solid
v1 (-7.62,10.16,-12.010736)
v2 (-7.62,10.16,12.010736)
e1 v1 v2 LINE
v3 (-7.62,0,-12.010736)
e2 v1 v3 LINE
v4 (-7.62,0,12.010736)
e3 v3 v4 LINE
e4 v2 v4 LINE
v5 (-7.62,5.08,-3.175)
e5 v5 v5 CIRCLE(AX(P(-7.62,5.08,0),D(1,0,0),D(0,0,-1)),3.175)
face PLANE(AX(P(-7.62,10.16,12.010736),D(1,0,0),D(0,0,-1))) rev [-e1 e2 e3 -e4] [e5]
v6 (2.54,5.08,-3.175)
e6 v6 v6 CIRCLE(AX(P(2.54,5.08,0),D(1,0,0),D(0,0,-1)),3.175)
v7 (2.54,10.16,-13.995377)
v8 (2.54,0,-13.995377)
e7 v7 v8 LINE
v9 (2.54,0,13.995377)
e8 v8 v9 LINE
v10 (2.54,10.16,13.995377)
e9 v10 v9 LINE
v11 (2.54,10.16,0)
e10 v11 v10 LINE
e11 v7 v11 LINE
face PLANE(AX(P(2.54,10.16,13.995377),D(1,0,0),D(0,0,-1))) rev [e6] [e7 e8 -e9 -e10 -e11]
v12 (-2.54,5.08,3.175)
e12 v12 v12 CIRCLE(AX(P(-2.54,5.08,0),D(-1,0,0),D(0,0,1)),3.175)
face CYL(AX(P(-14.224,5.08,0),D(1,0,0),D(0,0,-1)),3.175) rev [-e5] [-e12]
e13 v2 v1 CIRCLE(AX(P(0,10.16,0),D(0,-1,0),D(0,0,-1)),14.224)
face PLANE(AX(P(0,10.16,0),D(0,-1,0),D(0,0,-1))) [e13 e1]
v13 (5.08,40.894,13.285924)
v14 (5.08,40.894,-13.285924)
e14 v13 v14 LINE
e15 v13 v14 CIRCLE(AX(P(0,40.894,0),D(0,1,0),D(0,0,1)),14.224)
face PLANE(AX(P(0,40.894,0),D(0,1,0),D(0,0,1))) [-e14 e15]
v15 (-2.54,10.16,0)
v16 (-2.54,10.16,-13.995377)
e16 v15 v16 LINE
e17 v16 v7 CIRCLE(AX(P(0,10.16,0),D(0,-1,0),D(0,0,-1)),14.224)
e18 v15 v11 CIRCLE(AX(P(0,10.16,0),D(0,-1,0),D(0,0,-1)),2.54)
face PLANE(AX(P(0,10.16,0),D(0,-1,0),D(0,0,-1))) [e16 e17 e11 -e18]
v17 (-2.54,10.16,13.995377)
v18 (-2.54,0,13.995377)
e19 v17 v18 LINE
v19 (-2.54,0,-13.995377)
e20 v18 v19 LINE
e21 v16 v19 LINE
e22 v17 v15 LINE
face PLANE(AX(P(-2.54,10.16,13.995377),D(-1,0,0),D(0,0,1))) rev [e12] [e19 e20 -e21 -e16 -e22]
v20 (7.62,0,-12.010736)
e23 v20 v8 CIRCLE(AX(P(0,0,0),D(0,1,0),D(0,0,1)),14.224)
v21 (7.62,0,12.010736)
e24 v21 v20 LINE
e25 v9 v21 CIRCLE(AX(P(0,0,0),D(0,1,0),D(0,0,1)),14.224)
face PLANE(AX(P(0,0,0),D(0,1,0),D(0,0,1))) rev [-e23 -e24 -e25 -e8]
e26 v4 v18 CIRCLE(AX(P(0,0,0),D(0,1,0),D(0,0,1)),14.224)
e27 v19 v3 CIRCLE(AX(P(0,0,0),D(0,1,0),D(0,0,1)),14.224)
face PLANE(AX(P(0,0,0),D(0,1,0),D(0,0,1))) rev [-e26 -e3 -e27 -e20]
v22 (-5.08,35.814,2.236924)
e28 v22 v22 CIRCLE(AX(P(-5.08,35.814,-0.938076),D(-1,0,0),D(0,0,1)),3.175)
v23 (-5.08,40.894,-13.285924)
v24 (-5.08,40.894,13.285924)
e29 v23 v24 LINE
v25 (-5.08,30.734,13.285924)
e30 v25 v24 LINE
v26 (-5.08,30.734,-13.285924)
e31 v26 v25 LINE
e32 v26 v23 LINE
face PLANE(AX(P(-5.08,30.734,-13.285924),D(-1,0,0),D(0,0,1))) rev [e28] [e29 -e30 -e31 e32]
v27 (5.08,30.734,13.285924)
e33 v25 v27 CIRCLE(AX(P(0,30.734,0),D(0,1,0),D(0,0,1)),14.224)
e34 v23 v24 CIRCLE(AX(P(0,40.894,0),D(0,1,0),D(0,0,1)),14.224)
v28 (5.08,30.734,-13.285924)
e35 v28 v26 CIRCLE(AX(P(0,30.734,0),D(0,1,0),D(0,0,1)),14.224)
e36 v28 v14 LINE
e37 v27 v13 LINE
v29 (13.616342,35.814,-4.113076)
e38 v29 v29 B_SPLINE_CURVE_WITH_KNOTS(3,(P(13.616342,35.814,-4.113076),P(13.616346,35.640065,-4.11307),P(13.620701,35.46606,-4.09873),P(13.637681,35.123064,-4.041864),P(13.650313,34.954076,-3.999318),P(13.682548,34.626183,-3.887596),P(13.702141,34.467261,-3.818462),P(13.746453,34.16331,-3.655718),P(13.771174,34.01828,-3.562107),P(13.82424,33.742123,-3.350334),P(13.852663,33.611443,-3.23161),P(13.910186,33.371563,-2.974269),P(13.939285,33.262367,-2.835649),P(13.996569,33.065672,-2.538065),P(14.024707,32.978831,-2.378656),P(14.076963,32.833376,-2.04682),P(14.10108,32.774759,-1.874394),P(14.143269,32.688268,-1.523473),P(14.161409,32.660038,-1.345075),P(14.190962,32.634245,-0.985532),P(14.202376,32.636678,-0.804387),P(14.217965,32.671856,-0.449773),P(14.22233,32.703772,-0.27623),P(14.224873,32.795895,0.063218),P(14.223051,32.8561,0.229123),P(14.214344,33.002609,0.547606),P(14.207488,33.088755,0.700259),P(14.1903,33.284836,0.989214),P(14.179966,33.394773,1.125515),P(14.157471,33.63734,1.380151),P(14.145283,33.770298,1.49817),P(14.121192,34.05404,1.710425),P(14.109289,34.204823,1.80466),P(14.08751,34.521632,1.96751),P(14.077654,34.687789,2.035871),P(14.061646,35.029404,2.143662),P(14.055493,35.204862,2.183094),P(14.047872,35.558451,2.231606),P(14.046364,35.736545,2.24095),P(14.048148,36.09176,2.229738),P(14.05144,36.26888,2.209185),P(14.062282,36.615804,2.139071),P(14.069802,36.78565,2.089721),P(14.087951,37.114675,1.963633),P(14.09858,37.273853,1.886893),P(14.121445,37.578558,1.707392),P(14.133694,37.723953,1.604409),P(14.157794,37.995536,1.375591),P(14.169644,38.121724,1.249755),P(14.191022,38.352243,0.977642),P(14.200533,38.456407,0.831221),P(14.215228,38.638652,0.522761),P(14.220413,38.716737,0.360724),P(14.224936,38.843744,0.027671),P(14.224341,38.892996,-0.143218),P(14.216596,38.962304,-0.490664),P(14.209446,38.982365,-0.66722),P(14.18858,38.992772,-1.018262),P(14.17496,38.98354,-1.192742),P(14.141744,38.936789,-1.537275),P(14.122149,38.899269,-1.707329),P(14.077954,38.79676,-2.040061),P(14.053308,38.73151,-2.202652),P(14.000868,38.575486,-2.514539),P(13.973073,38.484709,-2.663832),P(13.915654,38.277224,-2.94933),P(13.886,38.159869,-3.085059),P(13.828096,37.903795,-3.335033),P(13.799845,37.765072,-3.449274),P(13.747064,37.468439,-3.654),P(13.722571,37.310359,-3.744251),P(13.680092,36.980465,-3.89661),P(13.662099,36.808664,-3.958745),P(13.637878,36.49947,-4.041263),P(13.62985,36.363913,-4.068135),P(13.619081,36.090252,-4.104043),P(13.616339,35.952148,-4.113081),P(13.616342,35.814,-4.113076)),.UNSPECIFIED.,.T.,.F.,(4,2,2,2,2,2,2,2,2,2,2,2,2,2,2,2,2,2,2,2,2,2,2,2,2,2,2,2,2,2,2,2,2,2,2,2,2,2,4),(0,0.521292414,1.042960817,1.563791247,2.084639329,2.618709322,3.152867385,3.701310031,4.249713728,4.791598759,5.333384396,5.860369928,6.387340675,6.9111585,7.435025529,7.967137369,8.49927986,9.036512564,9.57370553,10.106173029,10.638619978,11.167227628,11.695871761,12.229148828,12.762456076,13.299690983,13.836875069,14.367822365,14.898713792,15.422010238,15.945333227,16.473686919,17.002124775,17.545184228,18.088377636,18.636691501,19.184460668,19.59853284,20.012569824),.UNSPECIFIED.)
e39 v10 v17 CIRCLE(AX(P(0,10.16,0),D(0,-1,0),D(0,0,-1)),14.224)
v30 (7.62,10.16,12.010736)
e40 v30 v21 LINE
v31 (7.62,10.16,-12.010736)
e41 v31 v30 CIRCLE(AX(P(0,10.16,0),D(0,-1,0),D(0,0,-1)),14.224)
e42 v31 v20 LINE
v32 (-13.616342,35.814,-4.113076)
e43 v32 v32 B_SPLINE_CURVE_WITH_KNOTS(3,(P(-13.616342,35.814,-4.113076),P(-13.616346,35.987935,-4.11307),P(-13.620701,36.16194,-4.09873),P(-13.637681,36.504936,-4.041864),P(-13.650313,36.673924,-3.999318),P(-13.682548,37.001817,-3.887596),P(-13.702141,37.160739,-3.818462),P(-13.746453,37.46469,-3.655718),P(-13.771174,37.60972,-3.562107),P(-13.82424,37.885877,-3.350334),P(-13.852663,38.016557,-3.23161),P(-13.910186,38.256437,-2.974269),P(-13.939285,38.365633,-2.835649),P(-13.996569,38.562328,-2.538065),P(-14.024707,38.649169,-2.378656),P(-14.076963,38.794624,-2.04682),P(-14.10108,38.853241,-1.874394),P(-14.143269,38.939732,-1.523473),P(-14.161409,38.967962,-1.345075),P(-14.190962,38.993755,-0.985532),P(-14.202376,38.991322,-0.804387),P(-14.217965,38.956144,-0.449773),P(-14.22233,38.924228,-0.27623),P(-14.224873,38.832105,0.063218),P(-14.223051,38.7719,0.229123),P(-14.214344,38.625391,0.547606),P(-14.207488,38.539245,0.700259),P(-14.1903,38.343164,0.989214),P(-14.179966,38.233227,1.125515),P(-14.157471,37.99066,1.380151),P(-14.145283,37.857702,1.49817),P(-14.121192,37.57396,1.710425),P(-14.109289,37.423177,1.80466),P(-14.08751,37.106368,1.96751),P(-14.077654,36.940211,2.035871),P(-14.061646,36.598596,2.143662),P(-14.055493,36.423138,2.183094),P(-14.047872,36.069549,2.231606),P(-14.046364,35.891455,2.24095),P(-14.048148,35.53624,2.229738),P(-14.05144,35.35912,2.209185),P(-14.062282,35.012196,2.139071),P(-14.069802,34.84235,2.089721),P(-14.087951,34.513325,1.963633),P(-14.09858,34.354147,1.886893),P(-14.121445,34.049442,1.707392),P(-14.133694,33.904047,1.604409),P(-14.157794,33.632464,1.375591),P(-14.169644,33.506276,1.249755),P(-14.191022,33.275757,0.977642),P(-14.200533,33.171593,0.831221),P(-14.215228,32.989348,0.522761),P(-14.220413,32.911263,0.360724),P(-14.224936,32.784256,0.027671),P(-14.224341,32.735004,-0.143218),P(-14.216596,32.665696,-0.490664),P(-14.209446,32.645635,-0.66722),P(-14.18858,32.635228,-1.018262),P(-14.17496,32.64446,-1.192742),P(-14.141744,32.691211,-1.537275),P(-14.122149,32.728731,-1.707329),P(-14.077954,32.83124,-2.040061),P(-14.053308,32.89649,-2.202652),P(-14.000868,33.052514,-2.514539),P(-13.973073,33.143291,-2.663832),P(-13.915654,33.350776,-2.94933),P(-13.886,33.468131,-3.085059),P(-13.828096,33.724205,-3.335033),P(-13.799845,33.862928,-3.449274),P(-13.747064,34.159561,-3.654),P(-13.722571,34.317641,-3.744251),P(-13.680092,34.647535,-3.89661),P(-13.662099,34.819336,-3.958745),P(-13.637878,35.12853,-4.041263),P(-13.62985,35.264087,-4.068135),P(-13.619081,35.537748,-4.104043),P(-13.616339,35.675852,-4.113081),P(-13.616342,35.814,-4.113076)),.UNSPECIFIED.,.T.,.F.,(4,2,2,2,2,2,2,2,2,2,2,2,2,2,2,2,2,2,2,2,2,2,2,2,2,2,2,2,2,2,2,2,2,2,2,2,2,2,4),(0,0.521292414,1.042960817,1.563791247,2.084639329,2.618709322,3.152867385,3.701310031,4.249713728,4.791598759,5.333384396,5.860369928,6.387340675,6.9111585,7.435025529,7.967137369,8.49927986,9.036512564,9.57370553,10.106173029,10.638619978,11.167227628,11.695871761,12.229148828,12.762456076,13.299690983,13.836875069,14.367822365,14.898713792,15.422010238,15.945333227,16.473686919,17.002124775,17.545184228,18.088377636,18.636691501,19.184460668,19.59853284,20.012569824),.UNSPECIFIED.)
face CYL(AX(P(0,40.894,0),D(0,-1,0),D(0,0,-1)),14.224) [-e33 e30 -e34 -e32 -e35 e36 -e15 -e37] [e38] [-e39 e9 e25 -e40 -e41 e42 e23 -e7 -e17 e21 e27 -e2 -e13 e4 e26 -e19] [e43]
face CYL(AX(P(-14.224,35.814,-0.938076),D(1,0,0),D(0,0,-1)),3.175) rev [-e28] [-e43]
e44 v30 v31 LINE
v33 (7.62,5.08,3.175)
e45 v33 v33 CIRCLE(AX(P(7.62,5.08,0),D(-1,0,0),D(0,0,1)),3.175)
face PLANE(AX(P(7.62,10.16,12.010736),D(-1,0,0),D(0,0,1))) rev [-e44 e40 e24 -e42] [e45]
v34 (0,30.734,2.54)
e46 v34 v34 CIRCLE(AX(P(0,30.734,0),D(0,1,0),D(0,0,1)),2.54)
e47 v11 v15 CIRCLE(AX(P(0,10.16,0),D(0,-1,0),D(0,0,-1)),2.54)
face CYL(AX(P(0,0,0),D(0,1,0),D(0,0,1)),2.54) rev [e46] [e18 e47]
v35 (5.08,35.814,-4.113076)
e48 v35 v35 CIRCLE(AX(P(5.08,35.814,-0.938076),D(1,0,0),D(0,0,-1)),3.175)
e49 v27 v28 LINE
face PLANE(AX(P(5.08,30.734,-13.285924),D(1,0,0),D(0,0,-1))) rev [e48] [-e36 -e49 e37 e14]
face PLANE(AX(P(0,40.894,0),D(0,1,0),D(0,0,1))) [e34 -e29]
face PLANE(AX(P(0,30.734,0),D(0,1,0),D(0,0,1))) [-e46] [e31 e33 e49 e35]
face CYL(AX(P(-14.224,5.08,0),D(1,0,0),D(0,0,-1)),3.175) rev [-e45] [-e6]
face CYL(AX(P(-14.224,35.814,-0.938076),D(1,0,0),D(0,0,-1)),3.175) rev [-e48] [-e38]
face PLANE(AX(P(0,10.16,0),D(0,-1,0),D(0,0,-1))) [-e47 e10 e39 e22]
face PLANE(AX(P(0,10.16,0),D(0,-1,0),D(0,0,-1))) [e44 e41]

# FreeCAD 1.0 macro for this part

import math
import FreeCAD as App
import Part
import Sketcher

V = App.Vector
Q = App.Units.Quantity

doc = App.newDocument("Part")
body = doc.addObject("PartDesign::Body", "Body")

sketch1 = doc.addObject("Sketcher::SketchObject", "Sketch")
body.addObject(sketch1)
sketch1.AttachmentSupport = (doc.XZ_Plane, [""])
sketch1.MapMode = "FlatFace"
sketch1.addGeometry(Part.Circle(V(0, 0, 0), V(0, 0, 1), 14.224), False)
sketch1.addConstraint(Sketcher.Constraint("Coincident", 0, 3, -1, 1))
sketch1.addConstraint(Sketcher.Constraint("Diameter", 0, Q("1.12 in")))
pad1 = doc.addObject("PartDesign::Pad", "Pad")
body.addObject(pad1)
pad1.Profile = sketch1
pad1.Length = Q("1.61 in")
pad1.Reversed = True

sketch2 = doc.addObject("Sketcher::SketchObject", "Sketch001")
body.addObject(sketch2)
sketch2.AttachmentSupport = (doc.XZ_Plane, [""])
sketch2.MapMode = "FlatFace"
sketch2.AttachmentOffset = App.Placement(V(0, 0, -1.21 * 25.4), App.Rotation())
sketch2.addGeometry(Part.LineSegment(V(5.08, 13.285924, 0), V(5.08, -13.285924, 0)), False)
sketch2.addGeometry(Part.ArcOfCircle(Part.Circle(V(0, 0, 0), V(0, 0, 1), 14.224), math.radians(-110.924832), math.radians(-69.075168)), False)
sketch2.addGeometry(Part.LineSegment(V(-5.08, -13.285924, 0), V(-5.08, 13.285924, 0)), False)
sketch2.addGeometry(Part.ArcOfCircle(Part.Circle(V(0, 0, 0), V(0, 0, 1), 14.224), math.radians(69.075168), math.radians(110.924832)), False)
sketch2.addConstraint(Sketcher.Constraint("Coincident", 0, 2, 1, 2))
sketch2.addConstraint(Sketcher.Constraint("Coincident", 1, 1, 2, 1))
sketch2.addConstraint(Sketcher.Constraint("Coincident", 2, 2, 3, 2))
sketch2.addConstraint(Sketcher.Constraint("Coincident", 3, 1, 0, 1))
sketch2.addConstraint(Sketcher.Constraint("Vertical", 0))
sketch2.addConstraint(Sketcher.Constraint("Vertical", 2))
sketch2.addConstraint(Sketcher.Constraint("Coincident", 1, 3, -1, 1))
sketch2.addConstraint(Sketcher.Constraint("Coincident", 3, 3, -1, 1))
sketch2.addConstraint(Sketcher.Constraint("Equal", 1, 3))
sketch2.addConstraint(Sketcher.Constraint("Horizontal", 0, 2, 1, 1))
sketch2.addConstraint(Sketcher.Constraint("Radius", 1, Q("0.56 in")))
sketch2.addConstraint(Sketcher.Constraint("DistanceX", -1, 1, 0, 2, Q("0.2 in")))
pocket1 = doc.addObject("PartDesign::Pocket", "Pocket")
body.addObject(pocket1)
pocket1.Profile = sketch2
pocket1.Length = Q("0.4 in")

sketch3 = doc.addObject("Sketcher::SketchObject", "Sketch002")
body.addObject(sketch3)
sketch3.AttachmentSupport = (doc.XZ_Plane, [""])
sketch3.MapMode = "FlatFace"
sketch3.addGeometry(Part.LineSegment(V(-2.54, 13.995377, 0), V(-2.54, -13.995377, 0)), False)
sketch3.addGeometry(Part.ArcOfCircle(Part.Circle(V(0, 0, 0), V(0, 0, 1), 14.224), math.radians(-100.286561), math.radians(-79.713439)), False)
sketch3.addGeometry(Part.LineSegment(V(2.54, -13.995377, 0), V(2.54, 13.995377, 0)), False)
sketch3.addGeometry(Part.ArcOfCircle(Part.Circle(V(0, 0, 0), V(0, 0, 1), 14.224), math.radians(79.713439), math.radians(100.286561)), False)
sketch3.addGeometry(Part.LineSegment(V(-7.62, -12.010736, 0), V(-7.62, 12.010736, 0)), False)
sketch3.addGeometry(Part.ArcOfCircle(Part.Circle(V(0, 0, 0), V(0, 0, 1), 14.224), math.radians(122.392365), math.radians(237.607635)), False)
sketch3.addGeometry(Part.LineSegment(V(7.62, 12.010736, 0), V(7.62, -12.010736, 0)), False)
sketch3.addGeometry(Part.ArcOfCircle(Part.Circle(V(0, 0, 0), V(0, 0, 1), 14.224), math.radians(-57.607635), math.radians(57.607635)), False)
sketch3.addConstraint(Sketcher.Constraint("Coincident", 0, 2, 1, 1))
sketch3.addConstraint(Sketcher.Constraint("Coincident", 1, 2, 2, 1))
sketch3.addConstraint(Sketcher.Constraint("Coincident", 2, 2, 3, 1))
sketch3.addConstraint(Sketcher.Constraint("Coincident", 3, 2, 0, 1))
sketch3.addConstraint(Sketcher.Constraint("Coincident", 4, 1, 5, 2))
sketch3.addConstraint(Sketcher.Constraint("Coincident", 5, 1, 4, 2))
sketch3.addConstraint(Sketcher.Constraint("Coincident", 6, 1, 7, 2))
sketch3.addConstraint(Sketcher.Constraint("Coincident", 7, 1, 6, 2))
sketch3.addConstraint(Sketcher.Constraint("Vertical", 0))
sketch3.addConstraint(Sketcher.Constraint("Vertical", 2))
sketch3.addConstraint(Sketcher.Constraint("Vertical", 4))
sketch3.addConstraint(Sketcher.Constraint("Vertical", 6))
sketch3.addConstraint(Sketcher.Constraint("Coincident", 1, 3, -1, 1))
sketch3.addConstraint(Sketcher.Constraint("Coincident", 3, 3, -1, 1))
sketch3.addConstraint(Sketcher.Constraint("Coincident", 5, 3, -1, 1))
sketch3.addConstraint(Sketcher.Constraint("Coincident", 7, 3, -1, 1))
sketch3.addConstraint(Sketcher.Constraint("Equal", 1, 3))
sketch3.addConstraint(Sketcher.Constraint("Equal", 3, 5))
sketch3.addConstraint(Sketcher.Constraint("Equal", 5, 7))
sketch3.addConstraint(Sketcher.Constraint("Horizontal", 0, 2, 1, 2))
sketch3.addConstraint(Sketcher.Constraint("Horizontal", 5, 1, 6, 1))
sketch3.addConstraint(Sketcher.Constraint("Radius", 1, Q("0.56 in")))
sketch3.addConstraint(Sketcher.Constraint("DistanceX", 0, 2, -1, 1, Q("0.1 in")))
sketch3.addConstraint(Sketcher.Constraint("DistanceX", 4, 1, -1, 1, Q("0.3 in")))
pocket2 = doc.addObject("PartDesign::Pocket", "Pocket001")
body.addObject(pocket2)
pocket2.Profile = sketch3
pocket2.Length = Q("0.4 in")

sketch4 = doc.addObject("Sketcher::SketchObject", "Sketch003")
body.addObject(sketch4)
sketch4.AttachmentSupport = (doc.YZ_Plane, [""])
sketch4.MapMode = "FlatFace"
sketch4.AttachmentOffset = App.Placement(V(0, 0, -0.2 * 25.4), App.Rotation())
sketch4.addGeometry(Part.Circle(V(35.814, -0.938076, 0), V(0, 0, 1), 3.175), False)
sketch4.addGeometry(Part.Circle(V(5.08, 0, 0), V(0, 0, 1), 3.175), False)
sketch4.addConstraint(Sketcher.Constraint("Equal", 0, 1))
sketch4.addConstraint(Sketcher.Constraint("PointOnObject", 1, 3, -1))
sketch4.addConstraint(Sketcher.Constraint("Diameter", 0, Q("0.25 in")))
sketch4.addConstraint(Sketcher.Constraint("DistanceX", -1, 1, 1, 3, Q("0.2 in")))
sketch4.addConstraint(Sketcher.Constraint("DistanceX", -1, 1, 0, 3, Q("1.41 in")))
sketch4.addConstraint(Sketcher.Constraint("DistanceY", 0, 3, -1, 1, 0.938076))
pocket3 = doc.addObject("PartDesign::Pocket", "Pocket002")
body.addObject(pocket3)
pocket3.Profile = sketch4
pocket3.Type = "ThroughAll"
pocket3.Midplane = True

sketch5 = doc.addObject("Sketcher::SketchObject", "Sketch004")
body.addObject(sketch5)
sketch5.AttachmentSupport = (doc.XZ_Plane, [""])
sketch5.MapMode = "FlatFace"
sketch5.AttachmentOffset = App.Placement(V(0, 0, -1.21 * 25.4), App.Rotation())
sketch5.addGeometry(Part.Circle(V(0, 0, 0), V(0, 0, 1), 2.54), False)
sketch5.addConstraint(Sketcher.Constraint("Coincident", 0, 3, -1, 1))
sketch5.addConstraint(Sketcher.Constraint("Diameter", 0, Q("0.2 in")))
pocket4 = doc.addObject("PartDesign::Pocket", "Pocket003")
body.addObject(pocket4)
pocket4.Profile = sketch5
pocket4.Type = "ThroughAll"
pocket4.Reversed = True

doc.recompute()
